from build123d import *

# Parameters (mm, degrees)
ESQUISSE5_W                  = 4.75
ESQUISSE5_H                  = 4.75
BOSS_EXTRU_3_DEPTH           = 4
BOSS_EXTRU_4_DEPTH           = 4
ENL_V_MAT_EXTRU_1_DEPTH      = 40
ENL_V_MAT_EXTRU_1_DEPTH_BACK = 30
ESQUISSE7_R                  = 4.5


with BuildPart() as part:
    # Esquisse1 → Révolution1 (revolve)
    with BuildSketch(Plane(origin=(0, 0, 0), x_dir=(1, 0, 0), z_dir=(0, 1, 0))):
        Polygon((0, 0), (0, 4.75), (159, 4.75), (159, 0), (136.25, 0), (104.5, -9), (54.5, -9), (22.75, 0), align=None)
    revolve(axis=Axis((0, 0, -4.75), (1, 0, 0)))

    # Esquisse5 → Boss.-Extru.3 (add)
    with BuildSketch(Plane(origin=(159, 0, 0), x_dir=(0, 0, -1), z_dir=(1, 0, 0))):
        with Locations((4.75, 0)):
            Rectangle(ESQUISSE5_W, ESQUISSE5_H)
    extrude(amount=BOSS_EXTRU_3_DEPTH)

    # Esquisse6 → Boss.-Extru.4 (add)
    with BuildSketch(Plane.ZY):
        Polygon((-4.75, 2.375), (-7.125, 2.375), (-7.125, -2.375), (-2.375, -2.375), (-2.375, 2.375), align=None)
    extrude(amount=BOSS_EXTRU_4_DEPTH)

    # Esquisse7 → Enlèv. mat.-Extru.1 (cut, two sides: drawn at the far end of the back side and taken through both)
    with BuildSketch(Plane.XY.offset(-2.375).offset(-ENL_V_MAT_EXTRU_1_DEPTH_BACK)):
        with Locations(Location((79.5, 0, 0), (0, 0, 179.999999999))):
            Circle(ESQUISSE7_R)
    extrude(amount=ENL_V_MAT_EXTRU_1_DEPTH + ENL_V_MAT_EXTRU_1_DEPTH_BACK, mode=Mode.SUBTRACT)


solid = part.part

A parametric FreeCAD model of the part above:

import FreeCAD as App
import Part
import Sketcher
Q = App.Units.Quantity

doc = App.newDocument("Part")
body = doc.addObject("PartDesign::Body", "Body")

sketch1 = body.newObject("Sketcher::SketchObject", "Sketch")
sketch1.AttachmentSupport = (doc.getObject("XZ_Plane"), [""])
sketch1.MapMode = "FlatFace"
sketch1.addGeometry([
    Part.LineSegment(App.Vector(0, -4.8, 0), App.Vector(0, 0, 0)),
    Part.LineSegment(App.Vector(0, 0, 0), App.Vector(22.8, 0, 0)),
    Part.LineSegment(App.Vector(22.8, 0, 0), App.Vector(54.5, 9, 0)),
    Part.LineSegment(App.Vector(54.5, 9, 0), App.Vector(104.5, 9, 0)),
    Part.LineSegment(App.Vector(104.5, 9, 0), App.Vector(136.2, 0, 0)),
    Part.LineSegment(App.Vector(136.2, 0, 0), App.Vector(159, 0, 0)),
    Part.LineSegment(App.Vector(159, 0, 0), App.Vector(159, -4.8, 0)),
    Part.LineSegment(App.Vector(159, -4.8, 0), App.Vector(0, -4.8, 0)),
], False)
sketch1.addGeometry(Part.LineSegment(App.Vector(0, -4.8, 0), App.Vector(159, -4.8, 0)), True)
sketch1.addConstraint([
    Sketcher.Constraint("Coincident", 0, 2, 1, 1),
    Sketcher.Constraint("Coincident", 1, 2, 2, 1),
    Sketcher.Constraint("Coincident", 2, 2, 3, 1),
    Sketcher.Constraint("Coincident", 3, 2, 4, 1),
    Sketcher.Constraint("Coincident", 4, 2, 5, 1),
    Sketcher.Constraint("Coincident", 5, 2, 6, 1),
    Sketcher.Constraint("Coincident", 6, 2, 7, 1),
    Sketcher.Constraint("Coincident", 7, 2, 0, 1),
    Sketcher.Constraint("Vertical", 0),
    Sketcher.Constraint("Horizontal", 1),
    Sketcher.Constraint("Horizontal", 3),
    Sketcher.Constraint("Horizontal", 5),
    Sketcher.Constraint("Vertical", 6),
    Sketcher.Constraint("Horizontal", 7),
    Sketcher.Constraint("Horizontal", 8),
    Sketcher.Constraint("Coincident", 0, 2, -1, 1),
    Sketcher.Constraint("Coincident", 8, 1, 7, 2),
    Sketcher.Constraint("PointOnObject", 4, 2, -1),
    Sketcher.Constraint("Vertical", 5, 2, 8, 2),
    Sketcher.Constraint("Equal", 1, 5),
    Sketcher.Constraint("Equal", 2, 4),
    Sketcher.Constraint("DistanceX", 3, 1, 3, 2, Q("50 mm")),
    Sketcher.Constraint("DistanceX", 7, 2, 7, 1, Q("159 mm")),
    Sketcher.Constraint("DistanceY", -1, 1, 2, 2, Q("9 mm")),
    Sketcher.Constraint("DistanceX", 1, 1, 1, 2, Q("22.75 mm")),
    Sketcher.Constraint("DistanceY", 0, 1, 0, 2, Q("4.75 mm")),
])
revolution = body.newObject("PartDesign::Revolution", "Revolution")
revolution.Profile = sketch1
revolution.ReferenceAxis = (sketch1, ["Axis0"])
revolution.Angle = 360

sketch2 = body.newObject("Sketcher::SketchObject", "Sketch001")
sketch2.AttachmentSupport = (doc.getObject("YZ_Plane"), [""])
sketch2.MapMode = "FlatFace"
sketch2.AttachmentOffset = App.Placement(App.Vector(0, 0, 159), App.Rotation())
sketch2.addGeometry([
    Part.LineSegment(App.Vector(2.4, -2.4, 0), App.Vector(-2.4, -2.4, 0)),
    Part.LineSegment(App.Vector(-2.4, -2.4, 0), App.Vector(-2.4, -7.1, 0)),
    Part.LineSegment(App.Vector(-2.4, -7.1, 0), App.Vector(2.4, -7.1, 0)),
    Part.LineSegment(App.Vector(2.4, -7.1, 0), App.Vector(2.4, -2.4, 0)),
], False)
sketch2.addConstraint([
    Sketcher.Constraint("Coincident", 0, 2, 1, 1),
    Sketcher.Constraint("Coincident", 1, 2, 2, 1),
    Sketcher.Constraint("Coincident", 2, 2, 3, 1),
    Sketcher.Constraint("Coincident", 3, 2, 0, 1),
    Sketcher.Constraint("Horizontal", 0),
    Sketcher.Constraint("Vertical", 1),
    Sketcher.Constraint("Horizontal", 2),
    Sketcher.Constraint("Vertical", 3),
    Sketcher.Constraint("Equal", 2, 1),
    Sketcher.Constraint("DistanceX", 0, 2, 0, 1, Q("4.75 mm")),
    Sketcher.Constraint("DistanceX", 0, 2, -1, 1, Q("2.375 mm")),
    Sketcher.Constraint("DistanceY", 0, 2, -1, 1, Q("2.375 mm")),
])
pad1 = body.newObject("PartDesign::Pad", "Pad")
pad1.Profile = sketch2
pad1.Length = 4

sketch3 = body.newObject("Sketcher::SketchObject", "Sketch002")
sketch3.AttachmentSupport = (doc.getObject("YZ_Plane"), [""])
sketch3.MapMode = "FlatFace"
sketch3.addGeometry([
    Part.LineSegment(App.Vector(2.4, -7.1, 0), App.Vector(-2.4, -7.1, 0)),
    Part.LineSegment(App.Vector(-2.4, -7.1, 0), App.Vector(-2.4, -2.4, 0)),
    Part.LineSegment(App.Vector(-2.4, -2.4, 0), App.Vector(2.4, -2.4, 0)),
    Part.LineSegment(App.Vector(2.4, -2.4, 0), App.Vector(2.4, -7.1, 0)),
], False)
sketch3.addConstraint([
    Sketcher.Constraint("Coincident", 0, 2, 1, 1),
    Sketcher.Constraint("Coincident", 1, 2, 2, 1),
    Sketcher.Constraint("Coincident", 2, 2, 3, 1),
    Sketcher.Constraint("Coincident", 3, 2, 0, 1),
    Sketcher.Constraint("Horizontal", 0),
    Sketcher.Constraint("Vertical", 1),
    Sketcher.Constraint("Horizontal", 2),
    Sketcher.Constraint("Vertical", 3),
    Sketcher.Constraint("Equal", 2, 1),
    Sketcher.Constraint("DistanceX", 0, 2, 0, 1, Q("4.75 mm")),
    Sketcher.Constraint("DistanceX", 0, 2, -1, 1, Q("2.375 mm")),
    Sketcher.Constraint("DistanceY", 0, 2, -1, 1, Q("7.125 mm")),
])
pad2 = body.newObject("PartDesign::Pad", "Pad001")
pad2.Profile = sketch3
pad2.Length = 4
pad2.Reversed = True

sketch4 = body.newObject("Sketcher::SketchObject", "Sketch003")
sketch4.AttachmentSupport = (doc.getObject("XY_Plane"), [""])
sketch4.MapMode = "FlatFace"
sketch4.AttachmentOffset = App.Placement(App.Vector(0, 0, -2.375), App.Rotation())
sketch4.addGeometry(Part.Circle(App.Vector(79.5, 0, 0), App.Vector(0, 0, 1), 4.5), False)
sketch4.addConstraint([
    Sketcher.Constraint("PointOnObject", 0, 3, -1),
    Sketcher.Constraint("Diameter", 0, Q("9 mm")),
    Sketcher.Constraint("DistanceX", -1, 1, 0, 3, Q("79.5 mm")),
])
pocket1 = body.newObject("PartDesign::Pocket", "Pocket")
pocket1.Profile = sketch4
pocket1.Type = "ThroughAll"
pocket1.Midplane = True

doc.recompute()
